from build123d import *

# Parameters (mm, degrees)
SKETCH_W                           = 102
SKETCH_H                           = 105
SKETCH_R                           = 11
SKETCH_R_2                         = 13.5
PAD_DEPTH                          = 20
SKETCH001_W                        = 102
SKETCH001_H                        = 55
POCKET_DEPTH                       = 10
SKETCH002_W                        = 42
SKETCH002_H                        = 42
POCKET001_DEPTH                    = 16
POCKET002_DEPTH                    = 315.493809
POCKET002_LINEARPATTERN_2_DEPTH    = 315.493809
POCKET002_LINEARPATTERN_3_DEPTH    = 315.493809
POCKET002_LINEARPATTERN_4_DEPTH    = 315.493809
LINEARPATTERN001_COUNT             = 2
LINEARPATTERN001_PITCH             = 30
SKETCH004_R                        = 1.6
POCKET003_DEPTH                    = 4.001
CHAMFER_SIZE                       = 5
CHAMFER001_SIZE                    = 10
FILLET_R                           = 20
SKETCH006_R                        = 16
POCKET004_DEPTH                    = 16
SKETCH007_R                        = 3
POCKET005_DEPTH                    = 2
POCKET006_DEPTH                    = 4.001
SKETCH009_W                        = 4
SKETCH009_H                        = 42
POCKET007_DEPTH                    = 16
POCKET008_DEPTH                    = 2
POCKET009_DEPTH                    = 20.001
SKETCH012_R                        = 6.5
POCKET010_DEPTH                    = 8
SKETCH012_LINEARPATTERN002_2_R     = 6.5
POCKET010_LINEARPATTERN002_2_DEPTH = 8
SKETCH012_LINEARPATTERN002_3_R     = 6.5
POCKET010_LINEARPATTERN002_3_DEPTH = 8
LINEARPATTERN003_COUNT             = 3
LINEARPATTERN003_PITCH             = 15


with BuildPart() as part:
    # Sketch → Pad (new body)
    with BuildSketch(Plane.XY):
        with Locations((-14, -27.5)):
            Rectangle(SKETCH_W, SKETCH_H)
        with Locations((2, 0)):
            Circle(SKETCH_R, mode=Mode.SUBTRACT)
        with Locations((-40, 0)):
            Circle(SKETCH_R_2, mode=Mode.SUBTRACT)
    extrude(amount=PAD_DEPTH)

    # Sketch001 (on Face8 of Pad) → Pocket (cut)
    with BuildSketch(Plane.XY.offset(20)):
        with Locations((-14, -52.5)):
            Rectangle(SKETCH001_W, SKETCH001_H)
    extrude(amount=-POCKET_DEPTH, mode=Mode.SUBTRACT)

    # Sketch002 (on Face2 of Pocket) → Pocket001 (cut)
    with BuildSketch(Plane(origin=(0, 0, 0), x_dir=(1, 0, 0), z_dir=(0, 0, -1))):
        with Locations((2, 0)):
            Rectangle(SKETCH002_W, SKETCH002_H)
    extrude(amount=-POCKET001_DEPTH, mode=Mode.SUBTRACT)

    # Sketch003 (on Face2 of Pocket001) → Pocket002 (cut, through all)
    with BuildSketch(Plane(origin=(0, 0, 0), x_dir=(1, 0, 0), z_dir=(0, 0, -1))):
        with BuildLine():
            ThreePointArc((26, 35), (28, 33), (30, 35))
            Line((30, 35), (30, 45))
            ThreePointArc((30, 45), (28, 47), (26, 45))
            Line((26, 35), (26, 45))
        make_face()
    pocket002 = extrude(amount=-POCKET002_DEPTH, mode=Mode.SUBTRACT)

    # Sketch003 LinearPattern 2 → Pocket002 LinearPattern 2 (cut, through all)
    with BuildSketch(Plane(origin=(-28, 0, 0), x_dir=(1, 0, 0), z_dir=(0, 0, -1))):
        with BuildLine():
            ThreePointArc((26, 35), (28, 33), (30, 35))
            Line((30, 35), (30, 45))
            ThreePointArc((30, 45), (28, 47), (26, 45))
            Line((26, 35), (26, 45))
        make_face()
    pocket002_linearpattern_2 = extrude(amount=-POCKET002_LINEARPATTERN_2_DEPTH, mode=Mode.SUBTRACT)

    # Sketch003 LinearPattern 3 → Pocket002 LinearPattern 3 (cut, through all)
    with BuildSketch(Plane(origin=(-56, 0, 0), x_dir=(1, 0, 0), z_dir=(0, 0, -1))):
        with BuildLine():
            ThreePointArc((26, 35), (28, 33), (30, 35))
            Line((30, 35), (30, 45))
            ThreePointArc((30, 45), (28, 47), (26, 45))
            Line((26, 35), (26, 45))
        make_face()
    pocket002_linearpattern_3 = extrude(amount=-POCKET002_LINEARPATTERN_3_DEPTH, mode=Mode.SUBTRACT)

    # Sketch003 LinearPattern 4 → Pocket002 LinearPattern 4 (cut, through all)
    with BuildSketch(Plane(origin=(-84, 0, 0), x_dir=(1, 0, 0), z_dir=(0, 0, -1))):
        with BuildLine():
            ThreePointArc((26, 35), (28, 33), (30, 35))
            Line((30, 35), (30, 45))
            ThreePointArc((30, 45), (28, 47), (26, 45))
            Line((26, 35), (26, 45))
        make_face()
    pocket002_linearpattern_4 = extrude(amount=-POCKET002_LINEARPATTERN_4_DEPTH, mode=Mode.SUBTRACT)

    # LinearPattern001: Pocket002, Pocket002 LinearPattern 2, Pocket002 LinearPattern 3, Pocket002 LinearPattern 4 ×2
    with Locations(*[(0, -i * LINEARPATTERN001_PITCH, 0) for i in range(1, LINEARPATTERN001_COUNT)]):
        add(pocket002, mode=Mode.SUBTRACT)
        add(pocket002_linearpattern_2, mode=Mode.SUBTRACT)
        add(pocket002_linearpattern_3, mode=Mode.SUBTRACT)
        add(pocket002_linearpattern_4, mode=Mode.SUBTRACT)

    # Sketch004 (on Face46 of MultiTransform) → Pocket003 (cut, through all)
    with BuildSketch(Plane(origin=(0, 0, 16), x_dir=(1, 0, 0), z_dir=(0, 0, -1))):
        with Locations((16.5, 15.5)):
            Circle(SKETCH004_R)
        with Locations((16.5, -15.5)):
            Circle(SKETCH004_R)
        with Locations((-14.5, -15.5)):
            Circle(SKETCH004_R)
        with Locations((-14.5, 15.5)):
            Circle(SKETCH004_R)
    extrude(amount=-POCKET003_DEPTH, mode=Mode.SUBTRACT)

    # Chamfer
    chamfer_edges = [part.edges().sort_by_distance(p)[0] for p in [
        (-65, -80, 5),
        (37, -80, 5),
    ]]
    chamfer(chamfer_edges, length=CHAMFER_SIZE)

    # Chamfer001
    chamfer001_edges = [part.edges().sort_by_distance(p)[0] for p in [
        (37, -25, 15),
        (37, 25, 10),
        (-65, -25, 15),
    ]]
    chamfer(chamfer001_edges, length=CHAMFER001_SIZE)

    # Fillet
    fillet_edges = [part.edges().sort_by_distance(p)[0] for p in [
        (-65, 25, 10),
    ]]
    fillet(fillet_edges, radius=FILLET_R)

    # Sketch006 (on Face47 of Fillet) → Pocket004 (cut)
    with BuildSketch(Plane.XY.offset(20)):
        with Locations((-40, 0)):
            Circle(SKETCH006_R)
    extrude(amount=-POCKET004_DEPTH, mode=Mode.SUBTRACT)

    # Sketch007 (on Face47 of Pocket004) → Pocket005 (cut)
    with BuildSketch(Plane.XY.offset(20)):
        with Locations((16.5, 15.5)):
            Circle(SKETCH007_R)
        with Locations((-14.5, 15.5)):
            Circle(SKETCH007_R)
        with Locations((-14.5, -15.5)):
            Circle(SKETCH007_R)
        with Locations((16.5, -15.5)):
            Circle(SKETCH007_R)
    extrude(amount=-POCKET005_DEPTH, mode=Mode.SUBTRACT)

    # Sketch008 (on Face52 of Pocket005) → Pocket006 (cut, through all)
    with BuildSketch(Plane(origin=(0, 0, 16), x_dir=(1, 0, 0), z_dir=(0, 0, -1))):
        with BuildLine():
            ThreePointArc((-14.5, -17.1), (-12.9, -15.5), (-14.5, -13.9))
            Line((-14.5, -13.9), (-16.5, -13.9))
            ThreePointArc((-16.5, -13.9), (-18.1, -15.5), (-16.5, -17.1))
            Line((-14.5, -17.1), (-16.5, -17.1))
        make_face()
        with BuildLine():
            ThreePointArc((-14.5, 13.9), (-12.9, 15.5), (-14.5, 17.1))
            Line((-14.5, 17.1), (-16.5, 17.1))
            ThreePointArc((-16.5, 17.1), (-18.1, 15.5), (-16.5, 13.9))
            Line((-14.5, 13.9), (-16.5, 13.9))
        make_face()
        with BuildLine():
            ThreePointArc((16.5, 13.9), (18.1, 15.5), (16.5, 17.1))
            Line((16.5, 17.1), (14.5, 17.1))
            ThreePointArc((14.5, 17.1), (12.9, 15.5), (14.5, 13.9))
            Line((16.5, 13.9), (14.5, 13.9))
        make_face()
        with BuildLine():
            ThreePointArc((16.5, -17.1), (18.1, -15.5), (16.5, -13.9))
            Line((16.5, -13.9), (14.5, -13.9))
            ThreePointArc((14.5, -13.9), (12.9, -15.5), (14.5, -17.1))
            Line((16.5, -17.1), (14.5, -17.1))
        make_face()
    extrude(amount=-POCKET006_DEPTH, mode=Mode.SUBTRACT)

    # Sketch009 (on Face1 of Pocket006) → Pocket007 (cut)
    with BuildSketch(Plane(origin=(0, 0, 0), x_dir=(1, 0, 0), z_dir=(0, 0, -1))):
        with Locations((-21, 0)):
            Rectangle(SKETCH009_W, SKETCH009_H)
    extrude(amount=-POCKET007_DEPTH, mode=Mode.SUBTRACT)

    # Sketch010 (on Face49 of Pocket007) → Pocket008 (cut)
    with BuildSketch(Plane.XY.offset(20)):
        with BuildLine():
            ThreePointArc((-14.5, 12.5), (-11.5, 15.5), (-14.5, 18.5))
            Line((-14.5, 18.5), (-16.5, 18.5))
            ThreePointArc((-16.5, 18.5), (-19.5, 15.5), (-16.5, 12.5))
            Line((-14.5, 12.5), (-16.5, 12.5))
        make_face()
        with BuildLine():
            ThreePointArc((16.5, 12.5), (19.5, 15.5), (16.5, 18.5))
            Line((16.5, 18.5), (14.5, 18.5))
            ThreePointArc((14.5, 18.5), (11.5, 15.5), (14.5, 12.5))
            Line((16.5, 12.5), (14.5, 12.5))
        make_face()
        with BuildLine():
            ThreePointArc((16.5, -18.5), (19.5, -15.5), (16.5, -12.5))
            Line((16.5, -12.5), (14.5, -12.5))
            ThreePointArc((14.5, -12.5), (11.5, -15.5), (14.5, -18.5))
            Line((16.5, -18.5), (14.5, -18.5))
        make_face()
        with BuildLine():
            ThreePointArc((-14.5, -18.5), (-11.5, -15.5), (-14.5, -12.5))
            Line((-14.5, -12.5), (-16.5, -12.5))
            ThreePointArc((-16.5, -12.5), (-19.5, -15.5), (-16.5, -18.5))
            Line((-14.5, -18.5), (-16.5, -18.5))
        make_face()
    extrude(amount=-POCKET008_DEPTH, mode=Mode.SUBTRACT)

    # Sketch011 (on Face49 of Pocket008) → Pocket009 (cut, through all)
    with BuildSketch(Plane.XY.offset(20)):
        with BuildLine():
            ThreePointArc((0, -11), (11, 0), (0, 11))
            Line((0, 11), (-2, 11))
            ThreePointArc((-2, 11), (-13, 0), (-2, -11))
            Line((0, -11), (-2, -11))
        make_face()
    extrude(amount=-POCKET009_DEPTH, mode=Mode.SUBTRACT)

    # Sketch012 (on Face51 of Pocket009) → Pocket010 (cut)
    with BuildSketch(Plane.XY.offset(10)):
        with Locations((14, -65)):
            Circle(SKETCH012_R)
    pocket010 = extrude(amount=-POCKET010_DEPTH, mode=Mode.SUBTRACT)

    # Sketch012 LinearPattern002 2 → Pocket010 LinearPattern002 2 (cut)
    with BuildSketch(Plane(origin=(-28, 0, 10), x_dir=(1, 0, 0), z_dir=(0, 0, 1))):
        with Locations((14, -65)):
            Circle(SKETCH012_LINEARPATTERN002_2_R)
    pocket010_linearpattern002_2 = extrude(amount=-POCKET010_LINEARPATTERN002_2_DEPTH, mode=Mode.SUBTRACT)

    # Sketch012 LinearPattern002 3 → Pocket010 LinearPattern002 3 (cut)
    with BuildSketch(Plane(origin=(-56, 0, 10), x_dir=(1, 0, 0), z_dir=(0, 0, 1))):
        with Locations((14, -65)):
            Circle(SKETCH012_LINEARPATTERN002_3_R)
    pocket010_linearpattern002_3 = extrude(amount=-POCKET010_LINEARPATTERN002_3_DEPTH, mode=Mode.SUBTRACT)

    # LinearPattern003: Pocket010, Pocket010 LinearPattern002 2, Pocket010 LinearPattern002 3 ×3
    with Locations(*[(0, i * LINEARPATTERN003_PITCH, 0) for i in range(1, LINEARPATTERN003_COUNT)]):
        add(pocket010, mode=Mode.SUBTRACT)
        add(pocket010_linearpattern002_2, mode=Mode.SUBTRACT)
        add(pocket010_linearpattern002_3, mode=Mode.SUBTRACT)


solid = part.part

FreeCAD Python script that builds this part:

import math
import FreeCAD as App
import Part
import Sketcher


def edges_at(feature, points):
    """Names of the edges that pass closest to the given points."""
    edges = feature.Shape.Edges
    near = lambda p: min(range(len(edges)), key=lambda i: edges[i].distToShape(Part.Vertex(*p))[0])
    return sorted({f"Edge{near(p) + 1}" for p in points})

doc = App.newDocument("Part")
params = doc.addObject("Spreadsheet::Sheet", "Params")
for row, (alias, value) in enumerate([
    ("sketch1_diameter", "27 mm"),
    ("sketch1_diameter2", "22 mm"),
    ("sketch1_width", "102 mm"),
    ("sketch1_height", "105 mm"),
    ("pad1_length", "20 mm"),
    ("sketch2_width", "102 mm"),
    ("sketch2_height", "55 mm"),
    ("pocket1_length", "10 mm"),
    ("sketch3_width", "42 mm"),
    ("pocket2_length", "16 mm"),
    ("sketch4_radius", "2 mm"),
    ("sketch4_height", "10 mm"),
    ("sketch5_radius", "2 mm"),
    ("sketch5_height", "10 mm"),
    ("sketch6_radius", "2 mm"),
    ("sketch6_height", "10 mm"),
    ("sketch7_radius", "2 mm"),
    ("sketch7_height", "10 mm"),
    ("linearpattern_pitch", "30 mm"),
    ("sketch8_diameter", "3.2 mm"),
    ("chamfer_size", "5 mm"),
    ("chamfer2_size", "10 mm"),
    ("fillet_radius", "20 mm"),
    ("sketch9_diameter", "32 mm"),
    ("pocket8_length", "16 mm"),
    ("sketch10_diameter", "6 mm"),
    ("pocket9_length", "2 mm"),
    ("sketch11_radius", "1.6 mm"),
    ("sketch11_width", "2 mm"),
    ("sketch12_width", "4 mm"),
    ("sketch12_height", "42 mm"),
    ("pocket11_length", "16 mm"),
    ("sketch13_radius", "3 mm"),
    ("sketch13_width", "2 mm"),
    ("pocket12_length", "2 mm"),
    ("sketch14_radius", "11 mm"),
    ("sketch14_width", "2 mm"),
    ("sketch15_diameter", "13 mm"),
    ("pocket14_length", "8 mm"),
    ("sketch16_diameter", "13 mm"),
    ("pocket15_length", "8 mm"),
    ("sketch17_diameter", "13 mm"),
    ("pocket16_length", "8 mm"),
    ("linearpattern2_pitch", "15 mm"),
], start=1):
    params.set(f"A{row}", alias)
    params.set(f"B{row}", "=" + value)
    params.setAlias(f"B{row}", alias)

body = doc.addObject("PartDesign::Body", "Body")

# Sketch on XY plane
sketch1 = body.newObject("Sketcher::SketchObject", "Sketch")
sketch1.AttachmentSupport = (doc.getObject("XY_Plane"), [""])
sketch1.MapMode = "FlatFace"
sketch1.addGeometry([
    Part.LineSegment(App.Vector(-65, 25, 0), App.Vector(-65, -80, 0)),  # 0
    Part.LineSegment(App.Vector(-65, -80, 0), App.Vector(37, -80, 0)),  # 1
    Part.LineSegment(App.Vector(37, -80, 0), App.Vector(37, 25, 0)),  # 2
    Part.LineSegment(App.Vector(37, 25, 0), App.Vector(-65, 25, 0)),  # 3
    Part.Circle(App.Vector(-40, 0, 0), App.Vector(0, 0, 1), 14),  # 4
    Part.Circle(App.Vector(2, 0, 0), App.Vector(0, 0, 1), 11),  # 5
], False)
sketch1.addConstraint([
    Sketcher.Constraint("Coincident", 0, 2, 1, 1),
    Sketcher.Constraint("Coincident", 1, 2, 2, 1),
    Sketcher.Constraint("Coincident", 2, 2, 3, 1),
    Sketcher.Constraint("Coincident", 3, 2, 0, 1),
    Sketcher.Constraint("Vertical", 0),
    Sketcher.Constraint("Horizontal", 1),
    Sketcher.Constraint("Vertical", 2),
    Sketcher.Constraint("Horizontal", 3),
    Sketcher.Constraint("PointOnObject", 4, 3, -1),
    Sketcher.Constraint("PointOnObject", 5, 3, -1),
    Sketcher.Constraint("Diameter", 4, 27.0),
    Sketcher.Constraint("Diameter", 5, 22.0),
    Sketcher.Constraint("DistanceX", 1, 1, 1, 2, 102.0),
    Sketcher.Constraint("DistanceY", 0, 2, 0, 1, 105.0),
    Sketcher.Constraint("DistanceX", 4, 3, -1, 1, 40.0),
    Sketcher.Constraint("DistanceX", -1, 1, 5, 3, 2.0),
    Sketcher.Constraint("DistanceX", 0, 2, -1, 1, 65.0),
    Sketcher.Constraint("DistanceY", 0, 2, -1, 1, 80.0),
])
sketch1.setExpression("Constraints[10]", "Params.sketch1_diameter")
sketch1.setExpression("Constraints[11]", "Params.sketch1_diameter2")
sketch1.setExpression("Constraints[12]", "Params.sketch1_width")
sketch1.setExpression("Constraints[13]", "Params.sketch1_height")
pad1 = body.newObject("PartDesign::Pad", "Pad")
pad1.Profile = sketch1
pad1.setExpression("Length", "Params.pad1_length")

# Sketch on XY plane
sketch2 = body.newObject("Sketcher::SketchObject", "Sketch001")
sketch2.AttachmentSupport = (doc.getObject("XY_Plane"), [""])
sketch2.MapMode = "FlatFace"
sketch2.AttachmentOffset = App.Placement(App.Vector(0, 0, 20), App.Rotation())
sketch2.addGeometry([
    Part.LineSegment(App.Vector(-65, -25, 0), App.Vector(-65, -80, 0)),
    Part.LineSegment(App.Vector(-65, -80, 0), App.Vector(37, -80, 0)),
    Part.LineSegment(App.Vector(37, -80, 0), App.Vector(37, -25, 0)),
    Part.LineSegment(App.Vector(37, -25, 0), App.Vector(-65, -25, 0)),
], False)
sketch2.addConstraint([
    Sketcher.Constraint("Coincident", 0, 2, 1, 1),
    Sketcher.Constraint("Coincident", 1, 2, 2, 1),
    Sketcher.Constraint("Coincident", 2, 2, 3, 1),
    Sketcher.Constraint("Coincident", 3, 2, 0, 1),
    Sketcher.Constraint("Vertical", 0),
    Sketcher.Constraint("Horizontal", 1),
    Sketcher.Constraint("Vertical", 2),
    Sketcher.Constraint("Horizontal", 3),
    Sketcher.Constraint("DistanceX", 1, 1, 1, 2, 102.0),
    Sketcher.Constraint("DistanceY", 0, 2, 0, 1, 55.0),
    Sketcher.Constraint("DistanceX", 0, 2, -1, 1, 65.0),
    Sketcher.Constraint("DistanceY", 0, 2, -1, 1, 80.0),
])
sketch2.setExpression("Constraints[8]", "Params.sketch2_width")
sketch2.setExpression("Constraints[9]", "Params.sketch2_height")
pocket1 = body.newObject("PartDesign::Pocket", "Pocket")
pocket1.Profile = sketch2
pocket1.setExpression("Length", "Params.pocket1_length")

# Sketch on XY plane
sketch3 = body.newObject("Sketcher::SketchObject", "Sketch002")
sketch3.AttachmentSupport = (doc.getObject("XY_Plane"), [""])
sketch3.MapMode = "FlatFace"
sketch3.addGeometry([
    Part.LineSegment(App.Vector(-19, -21, 0), App.Vector(-19, 21, 0)),
    Part.LineSegment(App.Vector(-19, 21, 0), App.Vector(23, 21, 0)),
    Part.LineSegment(App.Vector(23, 21, 0), App.Vector(23, -21, 0)),
    Part.LineSegment(App.Vector(23, -21, 0), App.Vector(-19, -21, 0)),
], False)
sketch3.addConstraint([
    Sketcher.Constraint("Coincident", 0, 2, 1, 1),
    Sketcher.Constraint("Coincident", 1, 2, 2, 1),
    Sketcher.Constraint("Coincident", 2, 2, 3, 1),
    Sketcher.Constraint("Coincident", 3, 2, 0, 1),
    Sketcher.Constraint("Vertical", 0),
    Sketcher.Constraint("Horizontal", 1),
    Sketcher.Constraint("Vertical", 2),
    Sketcher.Constraint("Horizontal", 3),
    Sketcher.Constraint("Equal", 3, 0),
    Sketcher.Constraint("DistanceX", 1, 1, 1, 2, 42.0),
    Sketcher.Constraint("DistanceX", 0, 2, -1, 1, 19.0),
    Sketcher.Constraint("DistanceY", -1, 1, 0, 2, 21.0),
])
sketch3.setExpression("Constraints[9]", "Params.sketch3_width")
pocket2 = body.newObject("PartDesign::Pocket", "Pocket001")
pocket2.Profile = sketch3
pocket2.setExpression("Length", "Params.pocket2_length")
pocket2.Reversed = True

# Sketch on XY plane
sketch4 = body.newObject("Sketcher::SketchObject", "Sketch003")
sketch4.AttachmentSupport = (doc.getObject("XY_Plane"), [""])
sketch4.MapMode = "FlatFace"
sketch4.addGeometry([
    Part.ArcOfCircle(Part.Circle(App.Vector(28, -35, 0), App.Vector(0, 0, 1), 2), math.radians(0), math.radians(180)),
    Part.LineSegment(App.Vector(30, -35, 0), App.Vector(30, -45, 0)),
    Part.ArcOfCircle(Part.Circle(App.Vector(28, -45, 0), App.Vector(0, 0, 1), 2), math.radians(180), math.radians(360)),
    Part.LineSegment(App.Vector(26, -45, 0), App.Vector(26, -35, 0)),
], False)
sketch4.addConstraint([
    Sketcher.Constraint("Tangent", 0, 1, 1, 1),
    Sketcher.Constraint("Tangent", 1, 2, 2, 2),
    Sketcher.Constraint("Tangent", 2, 1, 3, 1),
    Sketcher.Constraint("Tangent", 3, 2, 0, 2),
    Sketcher.Constraint("Vertical", 1),
    Sketcher.Constraint("Vertical", 3),
    Sketcher.Constraint("Radius", 0, 2.0),
    Sketcher.Constraint("DistanceY", 1, 2, 1, 1, 10.0),
    Sketcher.Constraint("DistanceX", -1, 1, 0, 3, 28.0),
    Sketcher.Constraint("DistanceY", 0, 3, -1, 1, 35.0),
])
sketch4.setExpression("Constraints[6]", "Params.sketch4_radius")
sketch4.setExpression("Constraints[7]", "Params.sketch4_height")
pocket3 = body.newObject("PartDesign::Pocket", "Pocket002")
pocket3.Profile = sketch4
pocket3.Type = "ThroughAll"
pocket3.Reversed = True

# Sketch on XY plane
sketch5 = body.newObject("Sketcher::SketchObject", "Sketch004")
sketch5.AttachmentSupport = (doc.getObject("XY_Plane"), [""])
sketch5.MapMode = "FlatFace"
sketch5.addGeometry([
    Part.ArcOfCircle(Part.Circle(App.Vector(0, -35, 0), App.Vector(0, 0, 1), 2), math.radians(0), math.radians(180)),
    Part.LineSegment(App.Vector(2, -35, 0), App.Vector(2, -45, 0)),
    Part.ArcOfCircle(Part.Circle(App.Vector(0, -45, 0), App.Vector(0, 0, 1), 2), math.radians(180), math.radians(360)),
    Part.LineSegment(App.Vector(-2, -45, 0), App.Vector(-2, -35, 0)),
], False)
sketch5.addConstraint([
    Sketcher.Constraint("Tangent", 0, 1, 1, 1),
    Sketcher.Constraint("Tangent", 1, 2, 2, 2),
    Sketcher.Constraint("Tangent", 2, 1, 3, 1),
    Sketcher.Constraint("Tangent", 3, 2, 0, 2),
    Sketcher.Constraint("Vertical", 1),
    Sketcher.Constraint("Vertical", 3),
    Sketcher.Constraint("PointOnObject", 0, 3, -2),
    Sketcher.Constraint("Radius", 0, 2.0),
    Sketcher.Constraint("DistanceY", 1, 2, 1, 1, 10.0),
    Sketcher.Constraint("DistanceY", 0, 3, -1, 1, 35.0),
])
sketch5.setExpression("Constraints[7]", "Params.sketch5_radius")
sketch5.setExpression("Constraints[8]", "Params.sketch5_height")
pocket4 = body.newObject("PartDesign::Pocket", "Pocket003")
pocket4.Profile = sketch5
pocket4.Type = "ThroughAll"
pocket4.Reversed = True

# Sketch on XY plane
sketch6 = body.newObject("Sketcher::SketchObject", "Sketch005")
sketch6.AttachmentSupport = (doc.getObject("XY_Plane"), [""])
sketch6.MapMode = "FlatFace"
sketch6.addGeometry([
    Part.ArcOfCircle(Part.Circle(App.Vector(-28, -35, 0), App.Vector(0, 0, 1), 2), math.radians(0), math.radians(180)),
    Part.LineSegment(App.Vector(-26, -35, 0), App.Vector(-26, -45, 0)),
    Part.ArcOfCircle(Part.Circle(App.Vector(-28, -45, 0), App.Vector(0, 0, 1), 2), math.radians(180), math.radians(360)),
    Part.LineSegment(App.Vector(-30, -45, 0), App.Vector(-30, -35, 0)),
], False)
sketch6.addConstraint([
    Sketcher.Constraint("Tangent", 0, 1, 1, 1),
    Sketcher.Constraint("Tangent", 1, 2, 2, 2),
    Sketcher.Constraint("Tangent", 2, 1, 3, 1),
    Sketcher.Constraint("Tangent", 3, 2, 0, 2),
    Sketcher.Constraint("Vertical", 1),
    Sketcher.Constraint("Vertical", 3),
    Sketcher.Constraint("Radius", 0, 2.0),
    Sketcher.Constraint("DistanceY", 1, 2, 1, 1, 10.0),
    Sketcher.Constraint("DistanceX", 0, 3, -1, 1, 28.0),
    Sketcher.Constraint("DistanceY", 0, 3, -1, 1, 35.0),
])
sketch6.setExpression("Constraints[6]", "Params.sketch6_radius")
sketch6.setExpression("Constraints[7]", "Params.sketch6_height")
pocket5 = body.newObject("PartDesign::Pocket", "Pocket004")
pocket5.Profile = sketch6
pocket5.Type = "ThroughAll"
pocket5.Reversed = True

# Sketch on XY plane
sketch7 = body.newObject("Sketcher::SketchObject", "Sketch006")
sketch7.AttachmentSupport = (doc.getObject("XY_Plane"), [""])
sketch7.MapMode = "FlatFace"
sketch7.addGeometry([
    Part.ArcOfCircle(Part.Circle(App.Vector(-56, -35, 0), App.Vector(0, 0, 1), 2), math.radians(0), math.radians(180)),
    Part.LineSegment(App.Vector(-54, -35, 0), App.Vector(-54, -45, 0)),
    Part.ArcOfCircle(Part.Circle(App.Vector(-56, -45, 0), App.Vector(0, 0, 1), 2), math.radians(180), math.radians(360)),
    Part.LineSegment(App.Vector(-58, -45, 0), App.Vector(-58, -35, 0)),
], False)
sketch7.addConstraint([
    Sketcher.Constraint("Tangent", 0, 1, 1, 1),
    Sketcher.Constraint("Tangent", 1, 2, 2, 2),
    Sketcher.Constraint("Tangent", 2, 1, 3, 1),
    Sketcher.Constraint("Tangent", 3, 2, 0, 2),
    Sketcher.Constraint("Vertical", 1),
    Sketcher.Constraint("Vertical", 3),
    Sketcher.Constraint("Radius", 0, 2.0),
    Sketcher.Constraint("DistanceY", 1, 2, 1, 1, 10.0),
    Sketcher.Constraint("DistanceX", 0, 3, -1, 1, 56.0),
    Sketcher.Constraint("DistanceY", 0, 3, -1, 1, 35.0),
])
sketch7.setExpression("Constraints[6]", "Params.sketch7_radius")
sketch7.setExpression("Constraints[7]", "Params.sketch7_height")
pocket6 = body.newObject("PartDesign::Pocket", "Pocket005")
pocket6.Profile = sketch7
pocket6.Type = "ThroughAll"
pocket6.Reversed = True
doc.recompute()

linearpattern = body.newObject("PartDesign::LinearPattern", "LinearPattern")
linearpattern.Originals = [pocket3, pocket4, pocket5, pocket6]
linearpattern.Direction = (doc.getObject("Y_Axis"), [""])
linearpattern.Mode = "offset"
linearpattern.setExpression("Offset", "Params.linearpattern_pitch")
linearpattern.Occurrences = 2
linearpattern.Reversed = True
body.Tip = linearpattern

# Sketch on XY plane
sketch8 = body.newObject("Sketcher::SketchObject", "Sketch007")
sketch8.AttachmentSupport = (doc.getObject("XY_Plane"), [""])
sketch8.MapMode = "FlatFace"
sketch8.AttachmentOffset = App.Placement(App.Vector(0, 0, 16), App.Rotation())
sketch8.addGeometry([
    Part.Circle(App.Vector(16.5, -15.5, 0), App.Vector(0, 0, 1), 1.6),
    Part.Circle(App.Vector(16.5, 15.5, 0), App.Vector(0, 0, 1), 1.6),
    Part.Circle(App.Vector(-14.5, 15.5, 0), App.Vector(0, 0, 1), 1.6),
    Part.Circle(App.Vector(-14.5, -15.5, 0), App.Vector(0, 0, 1), 1.6),
], False)
sketch8.addConstraint([
    Sketcher.Constraint("Equal", 0, 1),
    Sketcher.Constraint("Equal", 1, 2),
    Sketcher.Constraint("Equal", 2, 3),
    Sketcher.Constraint("Symmetric", 0, 3, 1, 3, -1),
    Sketcher.Constraint("Symmetric", 2, 3, 3, 3, -1),
    Sketcher.Constraint("Horizontal", 1, 3, 2, 3),
    Sketcher.Constraint("Diameter", 0, 3.2),
    Sketcher.Constraint("DistanceY", 0, 3, 1, 3, 31.0),
    Sketcher.Constraint("DistanceX", 2, 3, 1, 3, 31.0),
    Sketcher.Constraint("DistanceX", -1, 1, 0, 3, 16.5),
])
sketch8.setExpression("Constraints[6]", "Params.sketch8_diameter")
pocket7 = body.newObject("PartDesign::Pocket", "Pocket006")
pocket7.Profile = sketch8
pocket7.Type = "ThroughAll"
pocket7.Reversed = True
doc.recompute()

chamfer = body.newObject("PartDesign::Chamfer", "Chamfer")
chamfer.Base = (pocket7, edges_at(pocket7, [(-65, -80, 5), (37, -80, 5)]))
chamfer.setExpression("Size", "Params.chamfer_size")
doc.recompute()

chamfer2 = body.newObject("PartDesign::Chamfer", "Chamfer001")
chamfer2.Base = (chamfer, edges_at(chamfer, [(37, -25, 15), (37, 25, 10), (-65, -25, 15)]))
chamfer2.setExpression("Size", "Params.chamfer2_size")
doc.recompute()

fillet = body.newObject("PartDesign::Fillet", "Fillet")
fillet.Base = (chamfer2, edges_at(chamfer2, [(-65, 25, 10)]))
fillet.setExpression("Radius", "Params.fillet_radius")

# Sketch on XY plane
sketch9 = body.newObject("Sketcher::SketchObject", "Sketch008")
sketch9.AttachmentSupport = (doc.getObject("XY_Plane"), [""])
sketch9.MapMode = "FlatFace"
sketch9.AttachmentOffset = App.Placement(App.Vector(0, 0, 20), App.Rotation())
sketch9.addGeometry(Part.Circle(App.Vector(-40, 0, 0), App.Vector(0, 0, 1), 16), False)
sketch9.addConstraint([
    Sketcher.Constraint("PointOnObject", 0, 3, -1),
    Sketcher.Constraint("Diameter", 0, 32.0),
    Sketcher.Constraint("DistanceX", 0, 3, -1, 1, 40.0),
])
sketch9.setExpression("Constraints[1]", "Params.sketch9_diameter")
pocket8 = body.newObject("PartDesign::Pocket", "Pocket007")
pocket8.Profile = sketch9
pocket8.setExpression("Length", "Params.pocket8_length")

# Sketch on XY plane
sketch10 = body.newObject("Sketcher::SketchObject", "Sketch009")
sketch10.AttachmentSupport = (doc.getObject("XY_Plane"), [""])
sketch10.MapMode = "FlatFace"
sketch10.AttachmentOffset = App.Placement(App.Vector(0, 0, 20), App.Rotation())
sketch10.addGeometry([
    Part.Circle(App.Vector(16.5, 15.5, 0), App.Vector(0, 0, 1), 3),
    Part.Circle(App.Vector(-14.5, 15.5, 0), App.Vector(0, 0, 1), 3),
    Part.Circle(App.Vector(-14.5, -15.5, 0), App.Vector(0, 0, 1), 3),
    Part.Circle(App.Vector(16.5, -15.5, 0), App.Vector(0, 0, 1), 3),
], False)
sketch10.addConstraint([
    Sketcher.Constraint("Equal", 0, 1),
    Sketcher.Constraint("Equal", 1, 2),
    Sketcher.Constraint("Equal", 2, 3),
    Sketcher.Constraint("Symmetric", 1, 3, 2, 3, -1),
    Sketcher.Constraint("Symmetric", 0, 3, 3, 3, -1),
    Sketcher.Constraint("Horizontal", 0, 3, 1, 3),
    Sketcher.Constraint("Diameter", 0, 6.0),
    Sketcher.Constraint("DistanceX", 1, 3, 0, 3, 31.0),
    Sketcher.Constraint("DistanceY", 2, 3, 1, 3, 31.0),
    Sketcher.Constraint("DistanceX", -1, 1, 0, 3, 16.5),
])
sketch10.setExpression("Constraints[6]", "Params.sketch10_diameter")
pocket9 = body.newObject("PartDesign::Pocket", "Pocket008")
pocket9.Profile = sketch10
pocket9.setExpression("Length", "Params.pocket9_length")

# Sketch on XY plane
sketch11 = body.newObject("Sketcher::SketchObject", "Sketch010")
sketch11.AttachmentSupport = (doc.getObject("XY_Plane"), [""])
sketch11.MapMode = "FlatFace"
sketch11.AttachmentOffset = App.Placement(App.Vector(0, 0, 16), App.Rotation())
sketch11.addGeometry([
    Part.ArcOfCircle(Part.Circle(App.Vector(-14.5, 15.5, 0), App.Vector(0, 0, 1), 1.6), math.radians(-90), math.radians(90)),  # 0
    Part.LineSegment(App.Vector(-14.5, 13.9, 0), App.Vector(-16.5, 13.9, 0)),  # 1
    Part.ArcOfCircle(Part.Circle(App.Vector(-16.5, 15.5, 0), App.Vector(0, 0, 1), 1.6), math.radians(90), math.radians(270)),  # 2
    Part.LineSegment(App.Vector(-16.5, 17.1, 0), App.Vector(-14.5, 17.1, 0)),  # 3
    Part.ArcOfCircle(Part.Circle(App.Vector(-14.5, -15.5, 0), App.Vector(0, 0, 1), 1.6), math.radians(-90), math.radians(90)),  # 4
    Part.LineSegment(App.Vector(-14.5, -17.1, 0), App.Vector(-16.5, -17.1, 0)),  # 5
    Part.ArcOfCircle(Part.Circle(App.Vector(-16.5, -15.5, 0), App.Vector(0, 0, 1), 1.6), math.radians(90), math.radians(270)),  # 6
    Part.LineSegment(App.Vector(-16.5, -13.9, 0), App.Vector(-14.5, -13.9, 0)),  # 7
    Part.ArcOfCircle(Part.Circle(App.Vector(16.5, -15.5, 0), App.Vector(0, 0, 1), 1.6), math.radians(-90), math.radians(90)),  # 8
    Part.LineSegment(App.Vector(16.5, -17.1, 0), App.Vector(14.5, -17.1, 0)),  # 9
    Part.ArcOfCircle(Part.Circle(App.Vector(14.5, -15.5, 0), App.Vector(0, 0, 1), 1.6), math.radians(90), math.radians(270)),  # 10
    Part.LineSegment(App.Vector(14.5, -13.9, 0), App.Vector(16.5, -13.9, 0)),  # 11
    Part.ArcOfCircle(Part.Circle(App.Vector(16.5, 15.5, 0), App.Vector(0, 0, 1), 1.6), math.radians(-90), math.radians(90)),  # 12
    Part.LineSegment(App.Vector(16.5, 13.9, 0), App.Vector(14.5, 13.9, 0)),  # 13
    Part.ArcOfCircle(Part.Circle(App.Vector(14.5, 15.5, 0), App.Vector(0, 0, 1), 1.6), math.radians(90), math.radians(270)),  # 14
    Part.LineSegment(App.Vector(14.5, 17.1, 0), App.Vector(16.5, 17.1, 0)),  # 15
], False)
sketch11.addConstraint([
    Sketcher.Constraint("Tangent", 0, 1, 1, 1),
    Sketcher.Constraint("Tangent", 1, 2, 2, 2),
    Sketcher.Constraint("Tangent", 2, 1, 3, 1),
    Sketcher.Constraint("Tangent", 3, 2, 0, 2),
    Sketcher.Constraint("Tangent", 4, 1, 5, 1),
    Sketcher.Constraint("Tangent", 5, 2, 6, 2),
    Sketcher.Constraint("Tangent", 6, 1, 7, 1),
    Sketcher.Constraint("Tangent", 7, 2, 4, 2),
    Sketcher.Constraint("Tangent", 8, 1, 9, 1),
    Sketcher.Constraint("Tangent", 9, 2, 10, 2),
    Sketcher.Constraint("Tangent", 10, 1, 11, 1),
    Sketcher.Constraint("Tangent", 11, 2, 8, 2),
    Sketcher.Constraint("Tangent", 12, 1, 13, 1),
    Sketcher.Constraint("Tangent", 13, 2, 14, 2),
    Sketcher.Constraint("Tangent", 14, 1, 15, 1),
    Sketcher.Constraint("Tangent", 15, 2, 12, 2),
    Sketcher.Constraint("Horizontal", 1),
    Sketcher.Constraint("Horizontal", 3),
    Sketcher.Constraint("Horizontal", 5),
    Sketcher.Constraint("Horizontal", 7),
    Sketcher.Constraint("Horizontal", 9),
    Sketcher.Constraint("Horizontal", 11),
    Sketcher.Constraint("Horizontal", 13),
    Sketcher.Constraint("Horizontal", 15),
    Sketcher.Constraint("Equal", 2, 4),
    Sketcher.Constraint("Equal", 6, 8),
    Sketcher.Constraint("Equal", 10, 12),
    Sketcher.Constraint("Symmetric", 2, 3, 8, 3, -1, 1),
    Sketcher.Constraint("Symmetric", 6, 3, 12, 3, -1, 1),
    Sketcher.Constraint("Symmetric", 6, 3, 8, 3, -2),
    Sketcher.Constraint("Vertical", 0, 3, 4, 3),
    Sketcher.Constraint("Vertical", 10, 3, 14, 3),
    Sketcher.Constraint("Equal", 7, 9),
    Sketcher.Constraint("Radius", 0, 1.6),
    Sketcher.Constraint("DistanceX", 1, 2, 1, 1, 2.0),
    Sketcher.Constraint("DistanceY", 4, 3, 0, 3, 31.0),
    Sketcher.Constraint("DistanceX", 4, 3, 8, 3, 31.0),
])
sketch11.setExpression("Constraints[33]", "Params.sketch11_radius")
sketch11.setExpression("Constraints[34]", "Params.sketch11_width")
pocket10 = body.newObject("PartDesign::Pocket", "Pocket009")
pocket10.Profile = sketch11
pocket10.Type = "ThroughAll"
pocket10.Reversed = True

# Sketch on XY plane
sketch12 = body.newObject("Sketcher::SketchObject", "Sketch011")
sketch12.AttachmentSupport = (doc.getObject("XY_Plane"), [""])
sketch12.MapMode = "FlatFace"
sketch12.addGeometry([
    Part.LineSegment(App.Vector(-23, -21, 0), App.Vector(-23, 21, 0)),
    Part.LineSegment(App.Vector(-23, 21, 0), App.Vector(-19, 21, 0)),
    Part.LineSegment(App.Vector(-19, 21, 0), App.Vector(-19, -21, 0)),
    Part.LineSegment(App.Vector(-19, -21, 0), App.Vector(-23, -21, 0)),
], False)
sketch12.addConstraint([
    Sketcher.Constraint("Coincident", 0, 2, 1, 1),
    Sketcher.Constraint("Coincident", 1, 2, 2, 1),
    Sketcher.Constraint("Coincident", 2, 2, 3, 1),
    Sketcher.Constraint("Coincident", 3, 2, 0, 1),
    Sketcher.Constraint("Vertical", 0),
    Sketcher.Constraint("Horizontal", 1),
    Sketcher.Constraint("Vertical", 2),
    Sketcher.Constraint("Horizontal", 3),
    Sketcher.Constraint("DistanceX", 1, 1, 1, 2, 4.0),
    Sketcher.Constraint("DistanceY", 0, 1, 0, 2, 42.0),
    Sketcher.Constraint("DistanceX", 0, 2, -1, 1, 23.0),
    Sketcher.Constraint("DistanceY", -1, 1, 0, 2, 21.0),
])
sketch12.setExpression("Constraints[8]", "Params.sketch12_width")
sketch12.setExpression("Constraints[9]", "Params.sketch12_height")
pocket11 = body.newObject("PartDesign::Pocket", "Pocket010")
pocket11.Profile = sketch12
pocket11.setExpression("Length", "Params.pocket11_length")
pocket11.Reversed = True

# Sketch on XY plane
sketch13 = body.newObject("Sketcher::SketchObject", "Sketch012")
sketch13.AttachmentSupport = (doc.getObject("XY_Plane"), [""])
sketch13.MapMode = "FlatFace"
sketch13.AttachmentOffset = App.Placement(App.Vector(0, 0, 20), App.Rotation())
sketch13.addGeometry([
    Part.ArcOfCircle(Part.Circle(App.Vector(-14.5, 15.5, 0), App.Vector(0, 0, 1), 3), math.radians(-90), math.radians(90)),  # 0
    Part.LineSegment(App.Vector(-14.5, 18.5, 0), App.Vector(-16.5, 18.5, 0)),  # 1
    Part.ArcOfCircle(Part.Circle(App.Vector(-16.5, 15.5, 0), App.Vector(0, 0, 1), 3), math.radians(90), math.radians(270)),  # 2
    Part.LineSegment(App.Vector(-16.5, 12.5, 0), App.Vector(-14.5, 12.5, 0)),  # 3
    Part.ArcOfCircle(Part.Circle(App.Vector(16.5, 15.5, 0), App.Vector(0, 0, 1), 3), math.radians(-90), math.radians(90)),  # 4
    Part.LineSegment(App.Vector(16.5, 18.5, 0), App.Vector(14.5, 18.5, 0)),  # 5
    Part.ArcOfCircle(Part.Circle(App.Vector(14.5, 15.5, 0), App.Vector(0, 0, 1), 3), math.radians(90), math.radians(270)),  # 6
    Part.LineSegment(App.Vector(14.5, 12.5, 0), App.Vector(16.5, 12.5, 0)),  # 7
    Part.ArcOfCircle(Part.Circle(App.Vector(16.5, -15.5, 0), App.Vector(0, 0, 1), 3), math.radians(-90), math.radians(90)),  # 8
    Part.LineSegment(App.Vector(16.5, -12.5, 0), App.Vector(14.5, -12.5, 0)),  # 9
    Part.ArcOfCircle(Part.Circle(App.Vector(14.5, -15.5, 0), App.Vector(0, 0, 1), 3), math.radians(90), math.radians(270)),  # 10
    Part.LineSegment(App.Vector(14.5, -18.5, 0), App.Vector(16.5, -18.5, 0)),  # 11
    Part.ArcOfCircle(Part.Circle(App.Vector(-14.5, -15.5, 0), App.Vector(0, 0, 1), 3), math.radians(-90), math.radians(90)),  # 12
    Part.LineSegment(App.Vector(-14.5, -12.5, 0), App.Vector(-16.5, -12.5, 0)),  # 13
    Part.ArcOfCircle(Part.Circle(App.Vector(-16.5, -15.5, 0), App.Vector(0, 0, 1), 3), math.radians(90), math.radians(270)),  # 14
    Part.LineSegment(App.Vector(-16.5, -18.5, 0), App.Vector(-14.5, -18.5, 0)),  # 15
], False)
sketch13.addConstraint([
    Sketcher.Constraint("Tangent", 0, 2, 1, 1),
    Sketcher.Constraint("Tangent", 1, 2, 2, 1),
    Sketcher.Constraint("Tangent", 2, 2, 3, 1),
    Sketcher.Constraint("Tangent", 3, 2, 0, 1),
    Sketcher.Constraint("Tangent", 4, 2, 5, 1),
    Sketcher.Constraint("Tangent", 5, 2, 6, 1),
    Sketcher.Constraint("Tangent", 6, 2, 7, 1),
    Sketcher.Constraint("Tangent", 7, 2, 4, 1),
    Sketcher.Constraint("Tangent", 8, 2, 9, 1),
    Sketcher.Constraint("Tangent", 9, 2, 10, 1),
    Sketcher.Constraint("Tangent", 10, 2, 11, 1),
    Sketcher.Constraint("Tangent", 11, 2, 8, 1),
    Sketcher.Constraint("Tangent", 12, 2, 13, 1),
    Sketcher.Constraint("Tangent", 13, 2, 14, 1),
    Sketcher.Constraint("Tangent", 14, 2, 15, 1),
    Sketcher.Constraint("Tangent", 15, 2, 12, 1),
    Sketcher.Constraint("Horizontal", 1),
    Sketcher.Constraint("Horizontal", 3),
    Sketcher.Constraint("Horizontal", 5),
    Sketcher.Constraint("Horizontal", 7),
    Sketcher.Constraint("Horizontal", 9),
    Sketcher.Constraint("Horizontal", 11),
    Sketcher.Constraint("Horizontal", 13),
    Sketcher.Constraint("Horizontal", 15),
    Sketcher.Constraint("Equal", 2, 4),
    Sketcher.Constraint("Equal", 6, 8),
    Sketcher.Constraint("Equal", 10, 12),
    Sketcher.Constraint("Symmetric", 2, 3, 8, 3, -1, 1),
    Sketcher.Constraint("Symmetric", 6, 3, 12, 3, -1, 1),
    Sketcher.Constraint("Symmetric", 2, 3, 4, 3, -2),
    Sketcher.Constraint("Vertical", 6, 3, 10, 3),
    Sketcher.Constraint("Vertical", 0, 3, 12, 3),
    Sketcher.Constraint("Vertical", 2, 3, 14, 3),
    Sketcher.Constraint("Radius", 0, 3.0),
    Sketcher.Constraint("DistanceX", 1, 2, 1, 1, 2.0),
    Sketcher.Constraint("DistanceX", 0, 3, 4, 3, 31.0),
    Sketcher.Constraint("DistanceY", 8, 3, 4, 3, 31.0),
])
sketch13.setExpression("Constraints[33]", "Params.sketch13_radius")
sketch13.setExpression("Constraints[34]", "Params.sketch13_width")
pocket12 = body.newObject("PartDesign::Pocket", "Pocket011")
pocket12.Profile = sketch13
pocket12.setExpression("Length", "Params.pocket12_length")

# Sketch on XY plane
sketch14 = body.newObject("Sketcher::SketchObject", "Sketch013")
sketch14.AttachmentSupport = (doc.getObject("XY_Plane"), [""])
sketch14.MapMode = "FlatFace"
sketch14.AttachmentOffset = App.Placement(App.Vector(0, 0, 20), App.Rotation())
sketch14.addGeometry([
    Part.ArcOfCircle(Part.Circle(App.Vector(0, 0, 0), App.Vector(0, 0, 1), 11), math.radians(-90), math.radians(90)),
    Part.LineSegment(App.Vector(0, 11, 0), App.Vector(-2, 11, 0)),
    Part.ArcOfCircle(Part.Circle(App.Vector(-2, 0, 0), App.Vector(0, 0, 1), 11), math.radians(90), math.radians(270)),
    Part.LineSegment(App.Vector(-2, -11, 0), App.Vector(0, -11, 0)),
], False)
sketch14.addConstraint([
    Sketcher.Constraint("Tangent", 0, 2, 1, 1),
    Sketcher.Constraint("Tangent", 1, 2, 2, 1),
    Sketcher.Constraint("Tangent", 2, 2, 3, 1),
    Sketcher.Constraint("Tangent", 3, 2, 0, 1),
    Sketcher.Constraint("Horizontal", 1),
    Sketcher.Constraint("Horizontal", 3),
    Sketcher.Constraint("Coincident", 0, 3, -1, 1),
    Sketcher.Constraint("Radius", 0, 11.0),
    Sketcher.Constraint("DistanceX", 1, 2, 1, 1, 2.0),
])
sketch14.setExpression("Constraints[7]", "Params.sketch14_radius")
sketch14.setExpression("Constraints[8]", "Params.sketch14_width")
pocket13 = body.newObject("PartDesign::Pocket", "Pocket012")
pocket13.Profile = sketch14
pocket13.Type = "ThroughAll"

# Sketch on XY plane
sketch15 = body.newObject("Sketcher::SketchObject", "Sketch014")
sketch15.AttachmentSupport = (doc.getObject("XY_Plane"), [""])
sketch15.MapMode = "FlatFace"
sketch15.AttachmentOffset = App.Placement(App.Vector(0, 0, 10), App.Rotation())
sketch15.addGeometry(Part.Circle(App.Vector(14, -65, 0), App.Vector(0, 0, 1), 6), False)
sketch15.addConstraint([
    Sketcher.Constraint("Diameter", 0, 13.0),
    Sketcher.Constraint("DistanceX", -1, 1, 0, 3, 14.0),
    Sketcher.Constraint("DistanceY", 0, 3, -1, 1, 65.0),
])
sketch15.setExpression("Constraints[0]", "Params.sketch15_diameter")
pocket14 = body.newObject("PartDesign::Pocket", "Pocket013")
pocket14.Profile = sketch15
pocket14.setExpression("Length", "Params.pocket14_length")

# Sketch on XY plane
sketch16 = body.newObject("Sketcher::SketchObject", "Sketch015")
sketch16.AttachmentSupport = (doc.getObject("XY_Plane"), [""])
sketch16.MapMode = "FlatFace"
sketch16.AttachmentOffset = App.Placement(App.Vector(0, 0, 10), App.Rotation())
sketch16.addGeometry(Part.Circle(App.Vector(-14, -65, 0), App.Vector(0, 0, 1), 6), False)
sketch16.addConstraint([
    Sketcher.Constraint("Diameter", 0, 13.0),
    Sketcher.Constraint("DistanceX", 0, 3, -1, 1, 14.0),
    Sketcher.Constraint("DistanceY", 0, 3, -1, 1, 65.0),
])
sketch16.setExpression("Constraints[0]", "Params.sketch16_diameter")
pocket15 = body.newObject("PartDesign::Pocket", "Pocket014")
pocket15.Profile = sketch16
pocket15.setExpression("Length", "Params.pocket15_length")

# Sketch on XY plane
sketch17 = body.newObject("Sketcher::SketchObject", "Sketch016")
sketch17.AttachmentSupport = (doc.getObject("XY_Plane"), [""])
sketch17.MapMode = "FlatFace"
sketch17.AttachmentOffset = App.Placement(App.Vector(0, 0, 10), App.Rotation())
sketch17.addGeometry(Part.Circle(App.Vector(-42, -65, 0), App.Vector(0, 0, 1), 6), False)
sketch17.addConstraint([
    Sketcher.Constraint("Diameter", 0, 13.0),
    Sketcher.Constraint("DistanceX", 0, 3, -1, 1, 42.0),
    Sketcher.Constraint("DistanceY", 0, 3, -1, 1, 65.0),
])
sketch17.setExpression("Constraints[0]", "Params.sketch17_diameter")
pocket16 = body.newObject("PartDesign::Pocket", "Pocket015")
pocket16.Profile = sketch17
pocket16.setExpression("Length", "Params.pocket16_length")
doc.recompute()

linearpattern2 = body.newObject("PartDesign::LinearPattern", "LinearPattern001")
linearpattern2.Originals = [pocket14, pocket15, pocket16]
linearpattern2.Direction = (doc.getObject("Y_Axis"), [""])
linearpattern2.Mode = "offset"
linearpattern2.setExpression("Offset", "Params.linearpattern2_pitch")
linearpattern2.Occurrences = 3
body.Tip = linearpattern2

doc.recompute()
